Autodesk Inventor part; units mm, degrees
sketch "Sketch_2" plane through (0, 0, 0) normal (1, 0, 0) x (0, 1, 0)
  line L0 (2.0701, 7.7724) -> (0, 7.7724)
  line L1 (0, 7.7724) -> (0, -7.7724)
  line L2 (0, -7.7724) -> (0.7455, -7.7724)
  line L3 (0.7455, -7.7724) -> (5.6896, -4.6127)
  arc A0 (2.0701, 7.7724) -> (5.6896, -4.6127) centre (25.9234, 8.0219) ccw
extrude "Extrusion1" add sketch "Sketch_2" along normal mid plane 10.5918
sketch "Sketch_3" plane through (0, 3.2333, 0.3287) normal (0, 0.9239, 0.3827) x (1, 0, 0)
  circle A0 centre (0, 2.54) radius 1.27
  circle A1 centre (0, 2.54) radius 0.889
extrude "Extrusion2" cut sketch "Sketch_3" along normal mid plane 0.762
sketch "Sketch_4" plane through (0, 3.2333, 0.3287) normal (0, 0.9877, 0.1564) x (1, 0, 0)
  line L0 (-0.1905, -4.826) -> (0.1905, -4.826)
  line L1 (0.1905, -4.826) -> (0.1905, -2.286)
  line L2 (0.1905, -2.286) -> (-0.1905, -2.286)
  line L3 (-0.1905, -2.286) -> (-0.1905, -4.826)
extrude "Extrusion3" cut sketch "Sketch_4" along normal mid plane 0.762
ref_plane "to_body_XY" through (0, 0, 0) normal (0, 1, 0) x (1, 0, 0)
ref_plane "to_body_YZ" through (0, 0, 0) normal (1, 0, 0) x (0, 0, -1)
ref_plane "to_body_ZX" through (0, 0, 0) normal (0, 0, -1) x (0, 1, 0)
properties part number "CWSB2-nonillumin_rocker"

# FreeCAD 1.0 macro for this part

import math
import FreeCAD as App
import Part
import Sketcher

V = App.Vector
Q = App.Units.Quantity

doc = App.newDocument("Part")
body = doc.addObject("PartDesign::Body", "Body")

sketch1 = doc.addObject("Sketcher::SketchObject", "Sketch")
body.addObject(sketch1)
sketch1.AttachmentSupport = (doc.YZ_Plane, [""])
sketch1.MapMode = "FlatFace"
sketch1.addGeometry(Part.ArcOfCircle(Part.Circle(V(25.9234, 8.0219, 0), V(0, 0, 1), 23.854605), math.radians(-179.400721), math.radians(-148.018091)), False)
sketch1.addGeometry(Part.LineSegment(V(2.0701, 7.7724, 0), V(0, 7.7724, 0)), False)
sketch1.addGeometry(Part.LineSegment(V(0, 7.7724, 0), V(0, -7.7724, 0)), False)
sketch1.addGeometry(Part.LineSegment(V(0, -7.7724, 0), V(0.7455, -7.7724, 0)), False)
sketch1.addGeometry(Part.LineSegment(V(0.7455, -7.7724, 0), V(5.6896, -4.6127, 0)), False)
sketch1.addConstraint(Sketcher.Constraint("Coincident", 0, 1, 1, 1))
sketch1.addConstraint(Sketcher.Constraint("Coincident", 1, 2, 2, 1))
sketch1.addConstraint(Sketcher.Constraint("Coincident", 2, 2, 3, 1))
sketch1.addConstraint(Sketcher.Constraint("Coincident", 3, 2, 4, 1))
sketch1.addConstraint(Sketcher.Constraint("Coincident", 4, 2, 0, 2))
sketch1.addConstraint(Sketcher.Constraint("Horizontal", 1))
sketch1.addConstraint(Sketcher.Constraint("Vertical", 2))
sketch1.addConstraint(Sketcher.Constraint("Horizontal", 3))
sketch1.addConstraint(Sketcher.Constraint("Symmetric", 1, 2, 2, 2, -1, 1))
sketch1.addConstraint(Sketcher.Constraint("DistanceY", 2, 2, 2, 1, Q("0.612 in")))
sketch1.addConstraint(Sketcher.Constraint("Radius", 0, 23.8546))
sketch1.addConstraint(Sketcher.Constraint("Distance", 4, Q("0.231 in")))
sketch1.addConstraint(Sketcher.Constraint("DistanceX", 1, 2, 1, 1, Q("0.0815 in")))
sketch1.addConstraint(Sketcher.Constraint("DistanceX", -1, 1, 4, 2, Q("0.224 in")))
sketch1.addConstraint(Sketcher.Constraint("DistanceX", 3, 1, 3, 2, 0.7455))
pad1 = doc.addObject("PartDesign::Pad", "Pad")
body.addObject(pad1)
pad1.Profile = sketch1
pad1.Length = Q("0.417 in")
pad1.Midplane = True

sketch2 = doc.addObject("Sketcher::SketchObject", "Sketch001")
body.addObject(sketch2)
sketch2.Placement = App.Placement(V(0, 3.2333, 0.3287), App.Rotation(V(1, 0, 0), V(0, 0.382683432, -0.923879533), V(0, 0.923879533, 0.382683432), "ZXY"))
sketch2.addGeometry(Part.Circle(V(0, 2.54, 0), V(0, 0, 1), 1.27), False)
sketch2.addGeometry(Part.Circle(V(0, 2.54, 0), V(0, 0, 1), 0.889), False)
sketch2.addConstraint(Sketcher.Constraint("Coincident", 1, 3, 0, 3))
sketch2.addConstraint(Sketcher.Constraint("PointOnObject", 0, 3, -2))
sketch2.addConstraint(Sketcher.Constraint("Diameter", 0, Q("0.1 in")))
sketch2.addConstraint(Sketcher.Constraint("Diameter", 1, Q("0.07 in")))
sketch2.addConstraint(Sketcher.Constraint("DistanceY", -1, 1, 0, 3, Q("0.1 in")))
pocket1 = doc.addObject("PartDesign::Pocket", "Pocket")
body.addObject(pocket1)
pocket1.Profile = sketch2
pocket1.Length = Q("0.03 in")
pocket1.Midplane = True

sketch3 = doc.addObject("Sketcher::SketchObject", "Sketch002")
body.addObject(sketch3)
sketch3.Placement = App.Placement(V(0, 3.2333, 0.3287), App.Rotation(V(1, 0, 0), V(0, 0.156434465, -0.987688341), V(0, 0.987688341, 0.156434465), "ZXY"))
sketch3.addGeometry(Part.LineSegment(V(-0.1905, -2.286, 0), V(-0.1905, -4.826, 0)), False)
sketch3.addGeometry(Part.LineSegment(V(-0.1905, -4.826, 0), V(0.1905, -4.826, 0)), False)
sketch3.addGeometry(Part.LineSegment(V(0.1905, -4.826, 0), V(0.1905, -2.286, 0)), False)
sketch3.addGeometry(Part.LineSegment(V(0.1905, -2.286, 0), V(-0.1905, -2.286, 0)), False)
sketch3.addConstraint(Sketcher.Constraint("Coincident", 0, 2, 1, 1))
sketch3.addConstraint(Sketcher.Constraint("Coincident", 1, 2, 2, 1))
sketch3.addConstraint(Sketcher.Constraint("Coincident", 2, 2, 3, 1))
sketch3.addConstraint(Sketcher.Constraint("Coincident", 3, 2, 0, 1))
sketch3.addConstraint(Sketcher.Constraint("Vertical", 0))
sketch3.addConstraint(Sketcher.Constraint("Horizontal", 1))
sketch3.addConstraint(Sketcher.Constraint("Vertical", 2))
sketch3.addConstraint(Sketcher.Constraint("Horizontal", 3))
sketch3.addConstraint(Sketcher.Constraint("DistanceY", 0, 2, 0, 1, Q("0.1 in")))
sketch3.addConstraint(Sketcher.Constraint("DistanceX", 1, 1, 1, 2, Q("0.015 in")))
sketch3.addConstraint(Sketcher.Constraint("DistanceY", 0, 2, -1, 1, Q("0.19 in")))
sketch3.addConstraint(Sketcher.Constraint("DistanceX", 0, 2, -1, 1, Q("0.0075 in")))
pocket2 = doc.addObject("PartDesign::Pocket", "Pocket001")
body.addObject(pocket2)
pocket2.Profile = sketch3
pocket2.Length = Q("0.03 in")
pocket2.Midplane = True

doc.recompute()
